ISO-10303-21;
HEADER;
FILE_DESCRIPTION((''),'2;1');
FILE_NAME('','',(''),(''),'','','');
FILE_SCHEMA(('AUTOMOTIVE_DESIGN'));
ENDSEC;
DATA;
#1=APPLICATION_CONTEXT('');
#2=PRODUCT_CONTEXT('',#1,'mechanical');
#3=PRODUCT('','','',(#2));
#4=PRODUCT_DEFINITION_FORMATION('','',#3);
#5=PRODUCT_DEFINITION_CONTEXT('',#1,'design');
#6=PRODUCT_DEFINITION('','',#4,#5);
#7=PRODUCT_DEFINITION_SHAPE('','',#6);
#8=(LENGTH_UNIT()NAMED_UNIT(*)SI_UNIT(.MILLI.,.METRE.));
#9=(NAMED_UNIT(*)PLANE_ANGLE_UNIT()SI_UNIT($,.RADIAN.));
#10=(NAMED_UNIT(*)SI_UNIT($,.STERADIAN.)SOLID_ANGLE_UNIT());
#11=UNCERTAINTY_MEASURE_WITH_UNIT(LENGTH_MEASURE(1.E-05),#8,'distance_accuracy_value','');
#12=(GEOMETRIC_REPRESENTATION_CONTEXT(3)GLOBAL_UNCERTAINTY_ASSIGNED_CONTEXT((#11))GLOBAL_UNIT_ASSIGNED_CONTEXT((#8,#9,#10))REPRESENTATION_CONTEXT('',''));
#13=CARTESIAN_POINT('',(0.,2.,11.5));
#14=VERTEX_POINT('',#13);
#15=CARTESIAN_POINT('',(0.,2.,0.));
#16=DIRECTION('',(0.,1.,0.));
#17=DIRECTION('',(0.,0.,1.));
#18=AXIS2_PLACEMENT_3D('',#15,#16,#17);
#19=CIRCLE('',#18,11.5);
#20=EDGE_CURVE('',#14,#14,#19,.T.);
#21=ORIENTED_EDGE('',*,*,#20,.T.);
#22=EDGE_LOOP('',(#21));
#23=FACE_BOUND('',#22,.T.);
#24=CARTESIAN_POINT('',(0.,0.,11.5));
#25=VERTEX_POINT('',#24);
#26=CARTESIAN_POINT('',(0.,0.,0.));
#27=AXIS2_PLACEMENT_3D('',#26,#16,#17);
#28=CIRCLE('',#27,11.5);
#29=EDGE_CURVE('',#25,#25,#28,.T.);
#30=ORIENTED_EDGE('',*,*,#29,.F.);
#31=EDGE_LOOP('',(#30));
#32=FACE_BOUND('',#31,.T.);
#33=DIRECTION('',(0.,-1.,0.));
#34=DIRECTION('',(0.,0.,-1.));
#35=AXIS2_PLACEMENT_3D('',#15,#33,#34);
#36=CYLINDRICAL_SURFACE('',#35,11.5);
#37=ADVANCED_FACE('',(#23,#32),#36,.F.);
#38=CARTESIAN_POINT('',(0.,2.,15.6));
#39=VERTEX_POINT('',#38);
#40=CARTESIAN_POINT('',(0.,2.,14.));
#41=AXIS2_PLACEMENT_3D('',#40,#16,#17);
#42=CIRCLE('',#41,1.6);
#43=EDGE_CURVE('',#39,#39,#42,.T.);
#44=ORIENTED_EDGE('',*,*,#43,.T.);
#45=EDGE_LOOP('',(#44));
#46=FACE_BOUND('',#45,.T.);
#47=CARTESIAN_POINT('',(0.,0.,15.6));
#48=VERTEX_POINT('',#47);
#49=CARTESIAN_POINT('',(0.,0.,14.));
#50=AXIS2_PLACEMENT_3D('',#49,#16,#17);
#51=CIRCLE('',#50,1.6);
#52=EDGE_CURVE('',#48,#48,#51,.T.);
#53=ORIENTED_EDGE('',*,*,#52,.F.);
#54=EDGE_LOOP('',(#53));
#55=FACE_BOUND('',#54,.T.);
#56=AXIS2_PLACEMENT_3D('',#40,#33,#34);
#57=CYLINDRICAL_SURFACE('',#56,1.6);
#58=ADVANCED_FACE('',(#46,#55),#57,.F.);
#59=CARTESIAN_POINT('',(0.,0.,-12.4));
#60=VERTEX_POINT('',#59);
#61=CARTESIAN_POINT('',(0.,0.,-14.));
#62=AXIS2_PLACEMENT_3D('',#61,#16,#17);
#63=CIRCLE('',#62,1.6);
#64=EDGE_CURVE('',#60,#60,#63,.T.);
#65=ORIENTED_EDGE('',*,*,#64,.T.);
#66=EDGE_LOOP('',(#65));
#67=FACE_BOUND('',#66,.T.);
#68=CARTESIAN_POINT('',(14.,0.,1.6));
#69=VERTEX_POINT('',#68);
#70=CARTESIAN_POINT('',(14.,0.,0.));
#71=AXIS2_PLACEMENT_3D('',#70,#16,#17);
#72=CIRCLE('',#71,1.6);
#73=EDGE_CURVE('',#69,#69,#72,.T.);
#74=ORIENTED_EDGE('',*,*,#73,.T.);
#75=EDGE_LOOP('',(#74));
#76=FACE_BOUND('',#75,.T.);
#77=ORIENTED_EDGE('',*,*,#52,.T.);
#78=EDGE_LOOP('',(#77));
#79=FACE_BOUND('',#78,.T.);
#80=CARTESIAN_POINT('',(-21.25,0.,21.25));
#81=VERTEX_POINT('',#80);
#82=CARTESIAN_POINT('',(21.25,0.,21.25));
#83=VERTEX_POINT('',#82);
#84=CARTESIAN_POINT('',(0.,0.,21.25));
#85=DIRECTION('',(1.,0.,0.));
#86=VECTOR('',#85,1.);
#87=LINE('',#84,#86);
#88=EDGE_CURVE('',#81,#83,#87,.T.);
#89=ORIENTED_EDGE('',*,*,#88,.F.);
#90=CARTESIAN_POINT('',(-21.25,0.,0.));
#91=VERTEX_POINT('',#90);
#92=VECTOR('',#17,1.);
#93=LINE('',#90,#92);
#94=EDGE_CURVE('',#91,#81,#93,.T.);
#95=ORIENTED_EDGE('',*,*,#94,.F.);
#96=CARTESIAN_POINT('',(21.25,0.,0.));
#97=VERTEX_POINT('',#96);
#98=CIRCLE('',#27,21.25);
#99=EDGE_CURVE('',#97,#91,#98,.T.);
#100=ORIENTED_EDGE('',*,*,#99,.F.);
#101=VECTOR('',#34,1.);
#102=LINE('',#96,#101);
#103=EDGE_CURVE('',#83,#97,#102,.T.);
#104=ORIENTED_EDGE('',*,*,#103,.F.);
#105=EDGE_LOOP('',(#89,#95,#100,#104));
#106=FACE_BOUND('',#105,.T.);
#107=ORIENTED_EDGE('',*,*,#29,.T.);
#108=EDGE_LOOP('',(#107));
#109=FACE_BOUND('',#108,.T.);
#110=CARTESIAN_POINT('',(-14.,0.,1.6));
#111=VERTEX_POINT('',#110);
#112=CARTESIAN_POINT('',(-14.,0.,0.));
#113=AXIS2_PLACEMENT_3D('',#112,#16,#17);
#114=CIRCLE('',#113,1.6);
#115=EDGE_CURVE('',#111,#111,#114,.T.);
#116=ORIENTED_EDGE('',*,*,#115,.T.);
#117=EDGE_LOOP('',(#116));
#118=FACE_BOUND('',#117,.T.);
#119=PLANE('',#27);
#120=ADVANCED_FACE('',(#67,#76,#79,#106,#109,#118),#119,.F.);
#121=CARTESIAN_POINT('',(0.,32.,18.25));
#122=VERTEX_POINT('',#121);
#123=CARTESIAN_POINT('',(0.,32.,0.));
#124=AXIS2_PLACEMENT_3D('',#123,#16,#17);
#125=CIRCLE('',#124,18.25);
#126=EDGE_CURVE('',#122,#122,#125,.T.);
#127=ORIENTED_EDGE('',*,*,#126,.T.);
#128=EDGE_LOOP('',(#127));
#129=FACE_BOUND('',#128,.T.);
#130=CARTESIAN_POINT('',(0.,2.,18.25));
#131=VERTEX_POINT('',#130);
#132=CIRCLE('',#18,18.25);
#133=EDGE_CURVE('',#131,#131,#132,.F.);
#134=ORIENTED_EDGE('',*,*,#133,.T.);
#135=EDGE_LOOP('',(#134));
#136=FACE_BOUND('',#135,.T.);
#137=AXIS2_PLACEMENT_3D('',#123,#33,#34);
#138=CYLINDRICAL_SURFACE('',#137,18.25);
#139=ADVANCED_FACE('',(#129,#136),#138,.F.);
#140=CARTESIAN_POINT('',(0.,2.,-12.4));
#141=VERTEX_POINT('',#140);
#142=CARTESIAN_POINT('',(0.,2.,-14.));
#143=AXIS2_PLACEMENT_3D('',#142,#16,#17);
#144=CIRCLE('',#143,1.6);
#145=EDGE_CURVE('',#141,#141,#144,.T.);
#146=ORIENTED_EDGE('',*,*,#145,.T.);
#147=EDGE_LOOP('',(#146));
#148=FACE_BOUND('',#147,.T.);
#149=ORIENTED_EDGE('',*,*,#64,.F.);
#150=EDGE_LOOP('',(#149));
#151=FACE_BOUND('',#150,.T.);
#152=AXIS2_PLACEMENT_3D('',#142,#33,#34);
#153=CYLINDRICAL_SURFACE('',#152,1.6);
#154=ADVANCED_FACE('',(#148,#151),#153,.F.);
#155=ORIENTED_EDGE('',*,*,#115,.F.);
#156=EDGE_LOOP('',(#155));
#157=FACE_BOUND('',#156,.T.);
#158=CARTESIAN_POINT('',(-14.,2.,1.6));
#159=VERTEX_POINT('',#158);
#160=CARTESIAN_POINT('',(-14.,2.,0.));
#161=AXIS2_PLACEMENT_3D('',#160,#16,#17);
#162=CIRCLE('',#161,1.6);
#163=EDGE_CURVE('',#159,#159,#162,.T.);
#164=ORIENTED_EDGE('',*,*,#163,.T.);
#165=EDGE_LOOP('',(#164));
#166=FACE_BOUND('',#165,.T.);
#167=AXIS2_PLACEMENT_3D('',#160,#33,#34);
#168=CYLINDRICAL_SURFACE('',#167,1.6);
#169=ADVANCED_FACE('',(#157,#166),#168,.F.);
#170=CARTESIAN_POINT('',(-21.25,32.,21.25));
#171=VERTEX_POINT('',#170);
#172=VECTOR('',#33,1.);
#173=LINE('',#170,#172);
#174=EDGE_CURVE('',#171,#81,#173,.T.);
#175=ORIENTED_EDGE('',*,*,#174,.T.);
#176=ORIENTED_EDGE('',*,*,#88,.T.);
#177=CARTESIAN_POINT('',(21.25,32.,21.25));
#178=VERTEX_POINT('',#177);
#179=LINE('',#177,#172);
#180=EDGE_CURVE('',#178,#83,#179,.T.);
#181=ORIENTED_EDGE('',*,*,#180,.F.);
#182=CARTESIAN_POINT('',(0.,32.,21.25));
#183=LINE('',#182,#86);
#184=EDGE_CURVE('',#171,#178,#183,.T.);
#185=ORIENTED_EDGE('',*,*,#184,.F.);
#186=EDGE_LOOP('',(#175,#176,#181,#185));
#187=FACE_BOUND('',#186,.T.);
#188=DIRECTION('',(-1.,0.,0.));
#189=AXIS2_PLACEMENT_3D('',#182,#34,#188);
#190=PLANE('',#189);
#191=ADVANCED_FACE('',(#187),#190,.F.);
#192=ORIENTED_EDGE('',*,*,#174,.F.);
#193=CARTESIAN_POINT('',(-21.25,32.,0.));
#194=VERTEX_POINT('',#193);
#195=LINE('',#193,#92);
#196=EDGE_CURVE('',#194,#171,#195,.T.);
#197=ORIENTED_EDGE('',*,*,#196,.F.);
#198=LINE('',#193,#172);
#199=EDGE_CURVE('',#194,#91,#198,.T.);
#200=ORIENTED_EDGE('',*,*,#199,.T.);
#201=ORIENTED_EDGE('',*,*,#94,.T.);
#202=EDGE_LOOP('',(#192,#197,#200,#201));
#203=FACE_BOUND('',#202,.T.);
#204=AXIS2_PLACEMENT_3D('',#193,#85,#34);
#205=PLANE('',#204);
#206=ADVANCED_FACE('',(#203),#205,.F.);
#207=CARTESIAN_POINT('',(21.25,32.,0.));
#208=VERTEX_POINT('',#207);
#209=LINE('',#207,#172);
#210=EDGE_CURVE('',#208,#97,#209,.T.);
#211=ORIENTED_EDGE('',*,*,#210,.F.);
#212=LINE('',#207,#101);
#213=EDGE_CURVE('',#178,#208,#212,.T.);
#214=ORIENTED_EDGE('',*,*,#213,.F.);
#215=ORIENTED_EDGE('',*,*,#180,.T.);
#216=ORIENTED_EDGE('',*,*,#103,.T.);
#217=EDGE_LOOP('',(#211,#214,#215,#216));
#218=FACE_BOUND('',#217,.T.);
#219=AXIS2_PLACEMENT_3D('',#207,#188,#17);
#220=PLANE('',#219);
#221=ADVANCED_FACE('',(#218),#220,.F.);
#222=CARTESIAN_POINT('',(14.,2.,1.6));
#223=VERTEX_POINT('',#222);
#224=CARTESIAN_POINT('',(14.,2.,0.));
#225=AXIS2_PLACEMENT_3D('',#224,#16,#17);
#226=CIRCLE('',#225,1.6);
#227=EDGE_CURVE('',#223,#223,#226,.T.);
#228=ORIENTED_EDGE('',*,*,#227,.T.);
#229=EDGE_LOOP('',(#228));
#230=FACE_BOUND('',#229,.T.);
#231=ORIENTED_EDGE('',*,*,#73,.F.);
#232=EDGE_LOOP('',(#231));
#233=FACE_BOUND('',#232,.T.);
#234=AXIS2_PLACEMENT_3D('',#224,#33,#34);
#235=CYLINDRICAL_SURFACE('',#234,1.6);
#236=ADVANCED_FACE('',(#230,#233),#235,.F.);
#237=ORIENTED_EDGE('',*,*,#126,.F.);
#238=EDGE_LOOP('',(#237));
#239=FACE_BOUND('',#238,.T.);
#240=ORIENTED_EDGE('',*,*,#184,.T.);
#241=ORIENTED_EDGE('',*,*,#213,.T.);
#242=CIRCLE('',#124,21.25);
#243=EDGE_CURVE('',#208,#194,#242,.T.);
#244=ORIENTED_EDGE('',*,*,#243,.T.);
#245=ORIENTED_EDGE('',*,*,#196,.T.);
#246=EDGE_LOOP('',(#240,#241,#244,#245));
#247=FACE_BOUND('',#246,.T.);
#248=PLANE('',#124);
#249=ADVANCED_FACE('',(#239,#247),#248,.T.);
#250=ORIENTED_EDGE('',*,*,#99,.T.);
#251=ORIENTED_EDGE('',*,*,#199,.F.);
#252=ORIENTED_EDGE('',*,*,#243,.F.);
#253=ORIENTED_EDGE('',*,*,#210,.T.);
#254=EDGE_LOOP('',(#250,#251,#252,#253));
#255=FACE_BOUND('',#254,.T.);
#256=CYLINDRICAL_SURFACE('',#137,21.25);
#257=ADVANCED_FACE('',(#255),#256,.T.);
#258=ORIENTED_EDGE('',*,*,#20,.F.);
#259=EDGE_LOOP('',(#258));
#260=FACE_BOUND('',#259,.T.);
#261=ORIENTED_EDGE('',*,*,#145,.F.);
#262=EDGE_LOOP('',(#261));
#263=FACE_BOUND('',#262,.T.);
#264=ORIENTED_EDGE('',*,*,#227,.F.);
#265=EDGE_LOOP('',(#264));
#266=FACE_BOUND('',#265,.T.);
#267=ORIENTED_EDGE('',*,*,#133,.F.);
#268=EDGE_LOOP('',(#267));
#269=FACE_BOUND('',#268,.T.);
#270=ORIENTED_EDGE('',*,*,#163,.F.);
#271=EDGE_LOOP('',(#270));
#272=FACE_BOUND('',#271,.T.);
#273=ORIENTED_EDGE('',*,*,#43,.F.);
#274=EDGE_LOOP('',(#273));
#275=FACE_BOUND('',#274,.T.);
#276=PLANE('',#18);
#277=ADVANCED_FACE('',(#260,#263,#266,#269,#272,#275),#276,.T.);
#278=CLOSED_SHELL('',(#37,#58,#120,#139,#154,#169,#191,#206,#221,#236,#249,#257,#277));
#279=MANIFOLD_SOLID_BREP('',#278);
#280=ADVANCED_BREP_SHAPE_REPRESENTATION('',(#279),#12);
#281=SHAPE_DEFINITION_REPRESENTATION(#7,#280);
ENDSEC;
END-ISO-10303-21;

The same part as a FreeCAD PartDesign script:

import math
import FreeCAD as App
import Part
import Sketcher

V = App.Vector

doc = App.newDocument("Part")
body = doc.addObject("PartDesign::Body", "Body")

# Sketch on XZ plane
sketch1 = body.newObject("Sketcher::SketchObject", "Sketch")
sketch1.AttachmentSupport = (doc.getObject("XZ_Plane"), [""])
sketch1.MapMode = "FlatFace"
sketch1.addGeometry(Part.Circle(V(0, 0, 0), V(0, 0, 1), 18.2), False)
sketch1.addGeometry(Part.Circle(V(-14, 0, 0), V(0, 0, 1), 1.6), False)
sketch1.addGeometry(Part.Circle(V(0, -14, 0), V(0, 0, 1), 1.6), False)
sketch1.addGeometry(Part.Circle(V(0, 0, 0), V(0, 0, 1), 11.5), False)
sketch1.addGeometry(Part.Circle(V(0, 14, 0), V(0, 0, 1), 1.6), False)
sketch1.addGeometry(Part.Circle(V(14, 0, 0), V(0, 0, 1), 1.6), False)
sketch1.addConstraint(Sketcher.Constraint("Coincident", 0, 3, -1, 1))
sketch1.addConstraint(Sketcher.Constraint("Coincident", 3, 3, -1, 1))
sketch1.addConstraint(Sketcher.Constraint("Equal", 1, 2))
sketch1.addConstraint(Sketcher.Constraint("Equal", 2, 4))
sketch1.addConstraint(Sketcher.Constraint("Equal", 4, 5))
sketch1.addConstraint(Sketcher.Constraint("Symmetric", 2, 3, 4, 3, -1, 1))
sketch1.addConstraint(Sketcher.Constraint("Symmetric", 1, 3, 5, 3, -1, 1))
sketch1.addConstraint(Sketcher.Constraint("PointOnObject", 1, 3, -1))
sketch1.addConstraint(Sketcher.Constraint("PointOnObject", 2, 3, -2))
sketch1.addConstraint(Sketcher.Constraint("Diameter", 3, 23.0))
sketch1.addConstraint(Sketcher.Constraint("Diameter", 0, 36.5))
sketch1.addConstraint(Sketcher.Constraint("Diameter", 1, 3.2))
sketch1.addConstraint(Sketcher.Constraint("DistanceX", 1, 3, -1, 1, 14.0))
sketch1.addConstraint(Sketcher.Constraint("DistanceY", 2, 3, -1, 1, 14.0))
pad1 = body.newObject("PartDesign::Pad", "Pad")
pad1.Profile = sketch1
pad1.Length = 2
pad1.Reversed = True

# Sketch on XZ plane
sketch2 = body.newObject("Sketcher::SketchObject", "Sketch001")
sketch2.AttachmentSupport = (doc.getObject("XZ_Plane"), [""])
sketch2.MapMode = "FlatFace"
sketch2.addGeometry(Part.Circle(V(0, 0, 0), V(0, 0, 1), 21), False)
sketch2.addGeometry(Part.Circle(V(0, 0, 0), V(0, 0, 1), 18), False)
sketch2.addConstraint(Sketcher.Constraint("Coincident", 0, 3, -1, 1))
sketch2.addConstraint(Sketcher.Constraint("Coincident", 1, 3, -1, 1))
sketch2.addConstraint(Sketcher.Constraint("Diameter", 0, 42.5))
sketch2.addConstraint(Sketcher.Constraint("Diameter", 1, 36.5))
pad2 = body.newObject("PartDesign::Pad", "Pad001")
pad2.Profile = sketch2
pad2.Length = 32
pad2.Reversed = True

# Sketch on XZ plane
sketch3 = body.newObject("Sketcher::SketchObject", "Sketch002")
sketch3.AttachmentSupport = (doc.getObject("XZ_Plane"), [""])
sketch3.MapMode = "FlatFace"
sketch3.addGeometry(Part.ArcOfCircle(Part.Circle(V(0, 0, 0), V(0, 0, 1), 21), math.radians(90), math.radians(180)), False)
sketch3.addGeometry(Part.LineSegment(V(-21, 0, 0), V(-21, 21, 0)), False)
sketch3.addGeometry(Part.LineSegment(V(-21, 21, 0), V(0, 21, 0)), False)
sketch3.addGeometry(Part.LineSegment(V(21, 21, 0), V(21, 0, 0)), False)
sketch3.addGeometry(Part.ArcOfCircle(Part.Circle(V(0, 0, 0), V(0, 0, 1), 21), math.radians(0), math.radians(90)), False)
sketch3.addGeometry(Part.LineSegment(V(0, 21, 0), V(21, 21, 0)), False)
sketch3.addConstraint(Sketcher.Constraint("Tangent", 0, 2, 1, 1))
sketch3.addConstraint(Sketcher.Constraint("Coincident", 1, 2, 2, 1))
sketch3.addConstraint(Sketcher.Constraint("Tangent", 2, 2, 0, 1))
sketch3.addConstraint(Sketcher.Constraint("Tangent", 3, 2, 4, 1))
sketch3.addConstraint(Sketcher.Constraint("Tangent", 4, 2, 5, 1))
sketch3.addConstraint(Sketcher.Constraint("Coincident", 5, 2, 3, 1))
sketch3.addConstraint(Sketcher.Constraint("Vertical", 1))
sketch3.addConstraint(Sketcher.Constraint("Horizontal", 2))
sketch3.addConstraint(Sketcher.Constraint("Vertical", 3))
sketch3.addConstraint(Sketcher.Constraint("Horizontal", 5))
sketch3.addConstraint(Sketcher.Constraint("Coincident", 0, 3, -1, 1))
sketch3.addConstraint(Sketcher.Constraint("Coincident", 4, 3, -1, 1))
sketch3.addConstraint(Sketcher.Constraint("Equal", 0, 4))
sketch3.addConstraint(Sketcher.Constraint("Radius", 0, 21.25))
pad3 = body.newObject("PartDesign::Pad", "Pad002")
pad3.Profile = sketch3
pad3.Length = 32
pad3.Reversed = True

doc.recompute()
